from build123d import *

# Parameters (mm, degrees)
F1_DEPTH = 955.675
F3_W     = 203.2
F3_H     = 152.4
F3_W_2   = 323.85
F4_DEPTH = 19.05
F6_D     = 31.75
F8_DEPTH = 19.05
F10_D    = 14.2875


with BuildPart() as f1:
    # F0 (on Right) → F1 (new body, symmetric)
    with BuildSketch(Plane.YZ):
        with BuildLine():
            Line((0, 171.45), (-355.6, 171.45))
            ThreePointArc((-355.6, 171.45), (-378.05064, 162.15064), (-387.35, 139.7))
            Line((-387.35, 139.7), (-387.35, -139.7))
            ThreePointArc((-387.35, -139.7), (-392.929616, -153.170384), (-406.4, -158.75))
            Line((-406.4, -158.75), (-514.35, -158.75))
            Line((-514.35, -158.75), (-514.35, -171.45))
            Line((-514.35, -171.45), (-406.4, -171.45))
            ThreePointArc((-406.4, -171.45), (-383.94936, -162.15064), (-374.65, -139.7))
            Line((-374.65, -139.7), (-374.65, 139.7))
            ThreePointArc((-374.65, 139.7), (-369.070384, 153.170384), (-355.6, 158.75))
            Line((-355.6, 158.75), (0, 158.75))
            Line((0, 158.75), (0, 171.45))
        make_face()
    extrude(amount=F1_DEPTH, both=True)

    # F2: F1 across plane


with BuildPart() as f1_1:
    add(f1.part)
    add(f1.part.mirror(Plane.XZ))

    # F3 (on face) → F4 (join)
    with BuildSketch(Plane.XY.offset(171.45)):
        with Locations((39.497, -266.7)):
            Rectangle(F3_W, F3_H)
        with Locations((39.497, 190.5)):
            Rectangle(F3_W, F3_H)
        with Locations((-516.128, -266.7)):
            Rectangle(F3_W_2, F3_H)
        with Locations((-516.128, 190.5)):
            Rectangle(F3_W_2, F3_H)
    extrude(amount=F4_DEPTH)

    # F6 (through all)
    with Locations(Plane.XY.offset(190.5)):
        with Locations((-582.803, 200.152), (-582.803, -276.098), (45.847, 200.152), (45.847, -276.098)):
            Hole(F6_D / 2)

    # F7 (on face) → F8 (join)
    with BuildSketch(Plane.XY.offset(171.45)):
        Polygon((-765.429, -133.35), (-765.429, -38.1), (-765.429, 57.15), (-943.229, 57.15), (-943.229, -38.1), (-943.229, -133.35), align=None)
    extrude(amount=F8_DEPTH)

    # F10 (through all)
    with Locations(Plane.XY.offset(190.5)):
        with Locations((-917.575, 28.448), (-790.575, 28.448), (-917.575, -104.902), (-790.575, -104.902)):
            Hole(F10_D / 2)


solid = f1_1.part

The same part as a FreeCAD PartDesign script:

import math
import FreeCAD as App
import Part
import Sketcher
Q = App.Units.Quantity

doc = App.newDocument("Part")
body = doc.addObject("PartDesign::Body", "Body")

sketch1 = body.newObject("Sketcher::SketchObject", "Sketch")
sketch1.AttachmentSupport = (doc.getObject("YZ_Plane"), [""])
sketch1.MapMode = "FlatFace"
sketch1.addGeometry([
    Part.LineSegment(App.Vector(0, 171.45, 0), App.Vector(-355.6, 171.45, 0)),
    Part.ArcOfCircle(Part.Circle(App.Vector(-355.599999, 139.699999, 0), App.Vector(0, 0, 1), 31.750001), math.radians(90.000002), math.radians(179.999998)),
    Part.LineSegment(App.Vector(-387.35, 139.7, 0), App.Vector(-387.35, -139.7, 0)),
    Part.ArcOfCircle(Part.Circle(App.Vector(-406.400001, -139.699999, 0), App.Vector(0, 0, 1), 19.050001), math.radians(-89.999998), math.radians(-0.000002)),
    Part.LineSegment(App.Vector(-406.4, -158.75, 0), App.Vector(-514.35, -158.75, 0)),
    Part.LineSegment(App.Vector(-514.35, -158.75, 0), App.Vector(-514.35, -171.45, 0)),
    Part.LineSegment(App.Vector(-514.35, -171.45, 0), App.Vector(-406.4, -171.45, 0)),
    Part.ArcOfCircle(Part.Circle(App.Vector(-406.400001, -139.699999, 0), App.Vector(0, 0, 1), 31.750001), math.radians(-89.999998), math.radians(-0.000002)),
    Part.LineSegment(App.Vector(-374.65, -139.7, 0), App.Vector(-374.65, 139.7, 0)),
    Part.ArcOfCircle(Part.Circle(App.Vector(-355.599999, 139.699999, 0), App.Vector(0, 0, 1), 19.050001), math.radians(90.000002), math.radians(179.999998)),
    Part.LineSegment(App.Vector(-355.6, 158.75, 0), App.Vector(0, 158.75, 0)),
    Part.LineSegment(App.Vector(0, 158.75, 0), App.Vector(0, 171.45, 0)),
], False)
sketch1.addConstraint([
    Sketcher.Constraint("Tangent", 0, 2, 1, 1),
    Sketcher.Constraint("Tangent", 1, 2, 2, 1),
    Sketcher.Constraint("Tangent", 2, 2, 3, 2),
    Sketcher.Constraint("Tangent", 3, 1, 4, 1),
    Sketcher.Constraint("Coincident", 4, 2, 5, 1),
    Sketcher.Constraint("Coincident", 5, 2, 6, 1),
    Sketcher.Constraint("Tangent", 6, 2, 7, 1),
    Sketcher.Constraint("Tangent", 7, 2, 8, 1),
    Sketcher.Constraint("Tangent", 8, 2, 9, 2),
    Sketcher.Constraint("Tangent", 9, 1, 10, 1),
    Sketcher.Constraint("Coincident", 10, 2, 11, 1),
    Sketcher.Constraint("Coincident", 11, 2, 0, 1),
    Sketcher.Constraint("Horizontal", 0),
    Sketcher.Constraint("Vertical", 2),
    Sketcher.Constraint("Horizontal", 4),
    Sketcher.Constraint("Vertical", 5),
    Sketcher.Constraint("Horizontal", 6),
    Sketcher.Constraint("Vertical", 8),
    Sketcher.Constraint("Horizontal", 10),
    Sketcher.Constraint("Vertical", 11),
    Sketcher.Constraint("Coincident", 7, 3, 3, 3),
    Sketcher.Constraint("Coincident", 9, 3, 1, 3),
    Sketcher.Constraint("Equal", 1, 7),
    Sketcher.Constraint("PointOnObject", 10, 2, -2),
    Sketcher.Constraint("DistanceX", 0, 2, 0, 1, Q("14 in")),
    Sketcher.Constraint("DistanceY", 2, 2, 2, 1, Q("11 in")),
    Sketcher.Constraint("Radius", 1, Q("1.25 in")),
    Sketcher.Constraint("Radius", 3, Q("0.75 in")),
    Sketcher.Constraint("DistanceX", 4, 2, 2, 2, Q("5 in")),
    Sketcher.Constraint("DistanceY", -1, 1, 1, 3, Q("5.5 in")),
])
pad1 = body.newObject("PartDesign::Pad", "Pad")
pad1.Profile = sketch1
pad1.Length = Q("75.25 in")
pad1.Midplane = True
body2 = doc.addObject("PartDesign::Body", "Body001")
doc.recompute()

body2.BaseFeature = body
doc.recompute()

mirroring = doc.addObject("Part::Mirroring", "Mirroring")
mirroring.Source = body
mirroring.Base = App.Vector(0, 0, 0)
mirroring.Normal = App.Vector(0, -1, 0)
body3 = doc.addObject("PartDesign::Body", "Body002")
body3.BaseFeature = mirroring
boolean = body2.newObject("PartDesign::Boolean", "Boolean")
boolean.Type = "Fuse"
boolean.addObjects([body3])
doc.recompute()

sketch2 = body2.newObject("Sketcher::SketchObject", "Sketch001")
sketch2.AttachmentSupport = (doc.getObject("XY_Plane001"), [""])
sketch2.MapMode = "FlatFace"
sketch2.AttachmentOffset = App.Placement(App.Vector(0, 0, 6.75 * 25.4), App.Rotation())
sketch2.addGeometry([
    Part.LineSegment(App.Vector(-62.103, -190.5, 0), App.Vector(-62.103, -342.9, 0)),
    Part.LineSegment(App.Vector(-62.103, -342.9, 0), App.Vector(141.097, -342.9, 0)),
    Part.LineSegment(App.Vector(141.097, -342.9, 0), App.Vector(141.097, -190.5, 0)),
    Part.LineSegment(App.Vector(141.097, -190.5, 0), App.Vector(-62.103, -190.5, 0)),
    Part.LineSegment(App.Vector(-62.103, 266.7, 0), App.Vector(-62.103, 114.3, 0)),
    Part.LineSegment(App.Vector(-62.103, 114.3, 0), App.Vector(141.097, 114.3, 0)),
    Part.LineSegment(App.Vector(141.097, 114.3, 0), App.Vector(141.097, 266.7, 0)),
    Part.LineSegment(App.Vector(141.097, 266.7, 0), App.Vector(-62.103, 266.7, 0)),
    Part.LineSegment(App.Vector(-678.053, -190.5, 0), App.Vector(-678.053, -342.9, 0)),
    Part.LineSegment(App.Vector(-678.053, -342.9, 0), App.Vector(-354.203, -342.9, 0)),
    Part.LineSegment(App.Vector(-354.203, -342.9, 0), App.Vector(-354.203, -190.5, 0)),
    Part.LineSegment(App.Vector(-354.203, -190.5, 0), App.Vector(-678.053, -190.5, 0)),
    Part.LineSegment(App.Vector(-678.053, 266.7, 0), App.Vector(-678.053, 114.3, 0)),
    Part.LineSegment(App.Vector(-678.053, 114.3, 0), App.Vector(-354.203, 114.3, 0)),
    Part.LineSegment(App.Vector(-354.203, 114.3, 0), App.Vector(-354.203, 266.7, 0)),
    Part.LineSegment(App.Vector(-354.203, 266.7, 0), App.Vector(-678.053, 266.7, 0)),
], False)
sketch2.addConstraint([
    Sketcher.Constraint("Coincident", 0, 2, 1, 1),
    Sketcher.Constraint("Coincident", 1, 2, 2, 1),
    Sketcher.Constraint("Coincident", 2, 2, 3, 1),
    Sketcher.Constraint("Coincident", 3, 2, 0, 1),
    Sketcher.Constraint("Coincident", 4, 2, 5, 1),
    Sketcher.Constraint("Coincident", 5, 2, 6, 1),
    Sketcher.Constraint("Coincident", 6, 2, 7, 1),
    Sketcher.Constraint("Coincident", 7, 2, 4, 1),
    Sketcher.Constraint("Coincident", 8, 2, 9, 1),
    Sketcher.Constraint("Coincident", 9, 2, 10, 1),
    Sketcher.Constraint("Coincident", 10, 2, 11, 1),
    Sketcher.Constraint("Coincident", 11, 2, 8, 1),
    Sketcher.Constraint("Coincident", 12, 2, 13, 1),
    Sketcher.Constraint("Coincident", 13, 2, 14, 1),
    Sketcher.Constraint("Coincident", 14, 2, 15, 1),
    Sketcher.Constraint("Coincident", 15, 2, 12, 1),
    Sketcher.Constraint("Vertical", 0),
    Sketcher.Constraint("Horizontal", 1),
    Sketcher.Constraint("Vertical", 2),
    Sketcher.Constraint("Horizontal", 3),
    Sketcher.Constraint("Vertical", 4),
    Sketcher.Constraint("Horizontal", 5),
    Sketcher.Constraint("Vertical", 6),
    Sketcher.Constraint("Horizontal", 7),
    Sketcher.Constraint("Vertical", 8),
    Sketcher.Constraint("Horizontal", 9),
    Sketcher.Constraint("Vertical", 10),
    Sketcher.Constraint("Horizontal", 11),
    Sketcher.Constraint("Vertical", 12),
    Sketcher.Constraint("Horizontal", 13),
    Sketcher.Constraint("Vertical", 14),
    Sketcher.Constraint("Horizontal", 15),
    Sketcher.Constraint("Horizontal", 1, 2, 8, 2),
    Sketcher.Constraint("Horizontal", 3, 2, 10, 2),
    Sketcher.Constraint("Horizontal", 5, 2, 12, 2),
    Sketcher.Constraint("Horizontal", 7, 2, 14, 2),
    Sketcher.Constraint("Vertical", 3, 2, 4, 2),
    Sketcher.Constraint("Vertical", 2, 2, 5, 2),
    Sketcher.Constraint("Vertical", 11, 2, 12, 2),
    Sketcher.Constraint("Vertical", 10, 2, 13, 2),
    Sketcher.Constraint("Equal", 2, 4),
    Sketcher.Constraint("DistanceX", 1, 1, 1, 2, Q("8 in")),
    Sketcher.Constraint("DistanceY", 0, 2, 0, 1, Q("6 in")),
    Sketcher.Constraint("DistanceY", 3, 2, 4, 2, Q("12 in")),
    Sketcher.Constraint("DistanceX", 9, 1, 9, 2, Q("12.75 in")),
    Sketcher.Constraint("DistanceY", 0, 2, -1, 1, Q("13.5 in")),
    Sketcher.Constraint("DistanceX", 9, 2, 0, 2, Q("11.5 in")),
    Sketcher.Constraint("DistanceX", 0, 2, -1, 1, Q("2.445 in")),
])
pad2 = body2.newObject("PartDesign::Pad", "Pad001")
pad2.Profile = sketch2
pad2.Length = Q("0.75 in")

sketch3 = body2.newObject("Sketcher::SketchObject", "Sketch002")
sketch3.AttachmentSupport = (doc.getObject("XY_Plane001"), [""])
sketch3.MapMode = "FlatFace"
sketch3.AttachmentOffset = App.Placement(App.Vector(0, 0, 7.5 * 25.4), App.Rotation())
sketch3.addGeometry([
    Part.Circle(App.Vector(-582.803, 200.152, 0), App.Vector(0, 0, 1), 15.875),
    Part.Circle(App.Vector(-582.803, -276.098, 0), App.Vector(0, 0, 1), 15.875),
    Part.Circle(App.Vector(45.847, 200.152, 0), App.Vector(0, 0, 1), 15.875),
    Part.Circle(App.Vector(45.847, -276.098, 0), App.Vector(0, 0, 1), 15.875),
], False)
sketch3.addConstraint([
    Sketcher.Constraint("Equal", 0, 1),
    Sketcher.Constraint("Equal", 1, 2),
    Sketcher.Constraint("Equal", 2, 3),
    Sketcher.Constraint("Horizontal", 0, 3, 2, 3),
    Sketcher.Constraint("Horizontal", 1, 3, 3, 3),
    Sketcher.Constraint("Vertical", 0, 3, 1, 3),
    Sketcher.Constraint("Vertical", 2, 3, 3, 3),
    Sketcher.Constraint("Diameter", 0, Q("1.25 in")),
    Sketcher.Constraint("DistanceY", -1, 1, 0, 3, Q("7.88 in")),
    Sketcher.Constraint("DistanceY", 1, 3, -1, 1, Q("10.87 in")),
    Sketcher.Constraint("DistanceX", 0, 3, 2, 3, Q("24.75 in")),
    Sketcher.Constraint("DistanceX", 0, 3, -1, 1, Q("22.945 in")),
])
doc.recompute()
hole = body2.newObject("PartDesign::Hole", "Hole")
hole.Profile = sketch3
hole.ThreadType = "None"
hole.Diameter = Q("1.25 in")
hole.DepthType = "ThroughAll"

sketch4 = body2.newObject("Sketcher::SketchObject", "Sketch003")
sketch4.AttachmentSupport = (doc.getObject("XY_Plane001"), [""])
sketch4.MapMode = "FlatFace"
sketch4.AttachmentOffset = App.Placement(App.Vector(0, 0, 6.75 * 25.4), App.Rotation())
sketch4.addGeometry([
    Part.LineSegment(App.Vector(-765.429, -133.35, 0), App.Vector(-765.429, 57.15, 0)),
    Part.LineSegment(App.Vector(-765.429, 57.15, 0), App.Vector(-943.229, 57.15, 0)),
    Part.LineSegment(App.Vector(-943.229, 57.15, 0), App.Vector(-943.229, -133.35, 0)),
    Part.LineSegment(App.Vector(-943.229, -133.35, 0), App.Vector(-765.429, -133.35, 0)),
], False)
sketch4.addConstraint([
    Sketcher.Constraint("Coincident", 0, 2, 1, 1),
    Sketcher.Constraint("Coincident", 1, 2, 2, 1),
    Sketcher.Constraint("Coincident", 2, 2, 3, 1),
    Sketcher.Constraint("Coincident", 3, 2, 0, 1),
    Sketcher.Constraint("Vertical", 0),
    Sketcher.Constraint("Horizontal", 1),
    Sketcher.Constraint("Vertical", 2),
    Sketcher.Constraint("Horizontal", 3),
    Sketcher.Constraint("DistanceX", 1, 2, 1, 1, Q("7 in")),
    Sketcher.Constraint("DistanceY", 0, 1, 0, 2, Q("7.5 in")),
    Sketcher.Constraint("DistanceY", -1, 1, 0, 2, Q("2.25 in")),
    Sketcher.Constraint("DistanceX", 0, 2, -1, 1, Q("30.135 in")),
])
pad3 = body2.newObject("PartDesign::Pad", "Pad002")
pad3.Profile = sketch4
pad3.Length = Q("0.75 in")

sketch5 = body2.newObject("Sketcher::SketchObject", "Sketch004")
sketch5.AttachmentSupport = (doc.getObject("XY_Plane001"), [""])
sketch5.MapMode = "FlatFace"
sketch5.AttachmentOffset = App.Placement(App.Vector(0, 0, 7.5 * 25.4), App.Rotation())
sketch5.addGeometry([
    Part.Circle(App.Vector(-917.575, 28.448, 0), App.Vector(0, 0, 1), 7.14375),
    Part.Circle(App.Vector(-790.575, 28.448, 0), App.Vector(0, 0, 1), 7.14375),
    Part.Circle(App.Vector(-917.575, -104.902, 0), App.Vector(0, 0, 1), 7.14375),
    Part.Circle(App.Vector(-790.575, -104.902, 0), App.Vector(0, 0, 1), 7.14375),
], False)
sketch5.addConstraint([
    Sketcher.Constraint("Equal", 0, 1),
    Sketcher.Constraint("Equal", 1, 2),
    Sketcher.Constraint("Equal", 2, 3),
    Sketcher.Constraint("Horizontal", 0, 3, 1, 3),
    Sketcher.Constraint("Horizontal", 2, 3, 3, 3),
    Sketcher.Constraint("Vertical", 0, 3, 2, 3),
    Sketcher.Constraint("Vertical", 1, 3, 3, 3),
    Sketcher.Constraint("Diameter", 0, Q("0.5625 in")),
    Sketcher.Constraint("DistanceX", 0, 3, 1, 3, Q("5 in")),
    Sketcher.Constraint("DistanceY", -1, 1, 0, 3, Q("1.12 in")),
    Sketcher.Constraint("DistanceY", 2, 3, -1, 1, Q("4.13 in")),
    Sketcher.Constraint("DistanceX", 0, 3, -1, 1, Q("36.125 in")),
])
doc.recompute()
hole2 = body2.newObject("PartDesign::Hole", "Hole001")
hole2.Profile = sketch5
hole2.ThreadType = "None"
hole2.Diameter = Q("0.5625 in")
hole2.DepthType = "ThroughAll"
mirroring.Visibility = False

doc.recompute()
